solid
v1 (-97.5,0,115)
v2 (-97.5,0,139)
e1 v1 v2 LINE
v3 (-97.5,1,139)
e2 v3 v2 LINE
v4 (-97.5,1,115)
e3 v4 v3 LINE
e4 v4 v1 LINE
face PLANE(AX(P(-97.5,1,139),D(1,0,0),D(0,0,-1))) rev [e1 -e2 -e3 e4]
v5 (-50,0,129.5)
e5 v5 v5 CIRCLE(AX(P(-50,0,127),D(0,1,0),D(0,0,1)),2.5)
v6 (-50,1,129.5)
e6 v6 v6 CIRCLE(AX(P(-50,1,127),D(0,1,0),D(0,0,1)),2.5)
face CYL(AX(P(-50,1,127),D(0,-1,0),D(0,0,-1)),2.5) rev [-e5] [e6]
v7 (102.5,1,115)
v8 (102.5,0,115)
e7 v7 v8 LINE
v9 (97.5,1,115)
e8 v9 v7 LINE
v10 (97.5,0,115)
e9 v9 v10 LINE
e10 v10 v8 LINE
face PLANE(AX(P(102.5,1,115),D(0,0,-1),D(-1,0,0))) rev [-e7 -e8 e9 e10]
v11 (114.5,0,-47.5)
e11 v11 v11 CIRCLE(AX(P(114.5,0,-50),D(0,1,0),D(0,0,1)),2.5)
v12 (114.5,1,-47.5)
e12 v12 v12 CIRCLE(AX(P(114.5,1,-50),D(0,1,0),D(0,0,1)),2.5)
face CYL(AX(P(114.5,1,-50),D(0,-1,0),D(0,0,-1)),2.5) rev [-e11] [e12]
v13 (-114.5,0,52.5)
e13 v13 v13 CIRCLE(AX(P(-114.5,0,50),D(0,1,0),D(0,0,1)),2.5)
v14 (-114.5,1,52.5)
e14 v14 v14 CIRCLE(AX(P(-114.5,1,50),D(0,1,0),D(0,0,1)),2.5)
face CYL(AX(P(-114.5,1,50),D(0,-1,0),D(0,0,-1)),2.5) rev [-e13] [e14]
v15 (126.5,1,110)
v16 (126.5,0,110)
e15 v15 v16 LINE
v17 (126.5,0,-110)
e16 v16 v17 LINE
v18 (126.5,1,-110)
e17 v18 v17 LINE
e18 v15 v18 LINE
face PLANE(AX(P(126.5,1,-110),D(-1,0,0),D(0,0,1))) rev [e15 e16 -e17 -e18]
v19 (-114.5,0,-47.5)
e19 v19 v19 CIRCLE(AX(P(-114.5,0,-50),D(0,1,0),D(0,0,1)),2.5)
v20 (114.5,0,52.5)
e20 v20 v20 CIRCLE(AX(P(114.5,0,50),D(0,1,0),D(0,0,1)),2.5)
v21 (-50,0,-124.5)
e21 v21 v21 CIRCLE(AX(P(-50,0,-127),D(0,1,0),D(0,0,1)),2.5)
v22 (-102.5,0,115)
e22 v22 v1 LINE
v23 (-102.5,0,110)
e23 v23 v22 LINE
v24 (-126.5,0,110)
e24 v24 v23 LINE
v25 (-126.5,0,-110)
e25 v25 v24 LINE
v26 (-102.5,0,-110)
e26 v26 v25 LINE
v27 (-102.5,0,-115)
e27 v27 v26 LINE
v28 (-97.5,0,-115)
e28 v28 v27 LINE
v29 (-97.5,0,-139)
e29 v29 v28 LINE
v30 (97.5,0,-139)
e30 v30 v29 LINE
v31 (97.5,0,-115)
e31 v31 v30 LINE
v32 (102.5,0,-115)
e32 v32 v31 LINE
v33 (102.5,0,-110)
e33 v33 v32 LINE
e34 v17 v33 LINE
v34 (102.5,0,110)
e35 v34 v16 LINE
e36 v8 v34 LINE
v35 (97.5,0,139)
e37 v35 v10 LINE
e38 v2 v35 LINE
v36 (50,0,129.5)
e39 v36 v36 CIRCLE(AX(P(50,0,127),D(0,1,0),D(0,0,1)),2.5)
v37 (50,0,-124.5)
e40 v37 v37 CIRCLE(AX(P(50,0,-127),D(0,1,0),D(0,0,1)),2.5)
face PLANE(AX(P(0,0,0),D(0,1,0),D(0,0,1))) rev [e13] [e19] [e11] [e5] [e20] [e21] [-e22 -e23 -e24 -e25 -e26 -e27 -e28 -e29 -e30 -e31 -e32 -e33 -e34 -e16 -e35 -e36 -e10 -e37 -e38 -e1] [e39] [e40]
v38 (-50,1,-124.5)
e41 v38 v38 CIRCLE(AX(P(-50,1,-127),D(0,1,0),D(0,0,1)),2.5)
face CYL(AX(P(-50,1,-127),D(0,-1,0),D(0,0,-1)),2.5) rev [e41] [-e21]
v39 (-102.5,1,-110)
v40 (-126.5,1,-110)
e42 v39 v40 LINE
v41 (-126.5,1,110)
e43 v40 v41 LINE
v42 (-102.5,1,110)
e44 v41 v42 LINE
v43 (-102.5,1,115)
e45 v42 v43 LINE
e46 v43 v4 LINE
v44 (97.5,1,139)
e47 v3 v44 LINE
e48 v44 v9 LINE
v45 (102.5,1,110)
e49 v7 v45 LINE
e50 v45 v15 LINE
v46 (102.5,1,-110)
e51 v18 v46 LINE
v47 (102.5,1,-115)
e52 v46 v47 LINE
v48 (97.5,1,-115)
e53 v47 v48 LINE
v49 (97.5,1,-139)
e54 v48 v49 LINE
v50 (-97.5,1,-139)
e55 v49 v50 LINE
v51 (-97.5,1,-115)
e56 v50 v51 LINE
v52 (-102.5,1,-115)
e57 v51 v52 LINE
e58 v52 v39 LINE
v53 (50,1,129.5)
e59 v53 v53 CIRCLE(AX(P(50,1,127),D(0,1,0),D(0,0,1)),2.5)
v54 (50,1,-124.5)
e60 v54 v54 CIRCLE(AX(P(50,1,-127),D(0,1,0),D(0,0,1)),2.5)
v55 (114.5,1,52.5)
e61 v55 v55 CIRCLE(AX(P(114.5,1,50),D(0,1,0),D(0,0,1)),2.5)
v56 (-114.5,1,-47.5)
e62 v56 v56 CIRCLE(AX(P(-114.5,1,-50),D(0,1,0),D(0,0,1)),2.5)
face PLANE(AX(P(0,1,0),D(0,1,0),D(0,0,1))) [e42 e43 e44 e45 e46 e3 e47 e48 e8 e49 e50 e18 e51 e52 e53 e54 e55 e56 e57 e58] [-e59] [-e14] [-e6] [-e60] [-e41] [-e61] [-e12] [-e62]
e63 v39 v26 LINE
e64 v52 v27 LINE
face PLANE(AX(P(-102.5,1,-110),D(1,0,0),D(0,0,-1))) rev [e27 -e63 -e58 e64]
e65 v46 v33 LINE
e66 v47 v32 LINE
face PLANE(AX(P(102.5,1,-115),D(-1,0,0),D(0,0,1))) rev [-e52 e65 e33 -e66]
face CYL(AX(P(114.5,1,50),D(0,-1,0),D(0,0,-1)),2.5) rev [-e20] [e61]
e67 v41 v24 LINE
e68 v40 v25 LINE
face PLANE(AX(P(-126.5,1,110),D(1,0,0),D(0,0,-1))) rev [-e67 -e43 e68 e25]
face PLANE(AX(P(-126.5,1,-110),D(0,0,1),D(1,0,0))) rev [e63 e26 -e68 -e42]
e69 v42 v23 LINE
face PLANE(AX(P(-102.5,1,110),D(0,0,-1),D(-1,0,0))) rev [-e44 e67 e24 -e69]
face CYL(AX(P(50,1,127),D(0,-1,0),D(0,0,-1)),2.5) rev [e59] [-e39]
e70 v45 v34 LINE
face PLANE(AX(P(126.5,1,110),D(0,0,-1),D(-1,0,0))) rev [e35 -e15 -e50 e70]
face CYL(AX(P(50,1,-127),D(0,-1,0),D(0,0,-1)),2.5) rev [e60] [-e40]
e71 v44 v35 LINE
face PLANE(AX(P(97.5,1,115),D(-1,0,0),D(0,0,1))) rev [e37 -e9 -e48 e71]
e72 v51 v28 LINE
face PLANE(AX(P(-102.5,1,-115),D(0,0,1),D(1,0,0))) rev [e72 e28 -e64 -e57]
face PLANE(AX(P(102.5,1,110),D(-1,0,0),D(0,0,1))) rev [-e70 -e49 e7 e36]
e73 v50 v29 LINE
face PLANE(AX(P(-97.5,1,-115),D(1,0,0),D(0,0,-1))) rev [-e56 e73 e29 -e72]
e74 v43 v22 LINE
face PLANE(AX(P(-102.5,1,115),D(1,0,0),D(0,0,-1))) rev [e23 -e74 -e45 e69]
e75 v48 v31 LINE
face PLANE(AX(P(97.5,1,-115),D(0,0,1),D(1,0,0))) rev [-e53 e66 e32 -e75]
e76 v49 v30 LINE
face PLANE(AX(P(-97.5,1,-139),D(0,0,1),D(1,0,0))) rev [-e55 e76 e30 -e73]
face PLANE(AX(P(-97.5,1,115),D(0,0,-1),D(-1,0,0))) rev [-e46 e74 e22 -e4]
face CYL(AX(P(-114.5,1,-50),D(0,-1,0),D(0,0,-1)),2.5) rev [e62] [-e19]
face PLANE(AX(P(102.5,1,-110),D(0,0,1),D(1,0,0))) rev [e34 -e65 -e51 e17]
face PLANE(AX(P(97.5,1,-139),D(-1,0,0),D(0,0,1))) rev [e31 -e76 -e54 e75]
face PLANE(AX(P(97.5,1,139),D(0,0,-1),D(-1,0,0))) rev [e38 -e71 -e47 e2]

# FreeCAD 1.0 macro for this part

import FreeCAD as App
import Part
import Sketcher
Q = App.Units.Quantity


def add_polygon(sketch, points):
    """Adds a closed chain of lines whose ends are joined by coincident constraints."""
    first, n = sketch.GeometryCount, len(points)
    for a, b in zip(points, points[1:] + points[:1]):
        sketch.addGeometry(Part.LineSegment(App.Vector(*a, 0), App.Vector(*b, 0)), False)
    for i in range(n):
        sketch.addConstraint(Sketcher.Constraint("Coincident", first + i, 2, first + (i + 1) % n, 1))

doc = App.newDocument("Part")
body = doc.addObject("PartDesign::Body", "Body")

sketch1 = body.newObject("Sketcher::SketchObject", "Sketch")
sketch1.AttachmentSupport = (doc.getObject("XZ_Plane"), [""])
sketch1.MapMode = "FlatFace"
add_polygon(sketch1, [(-97.5, -115), (-102.5, -115), (-102.5, -110), (-126.5, -110), (-126.5, 110), (-102.5, 110), (-102.5, 115), (-97.5, 115), (-97.5, 139), (97.5, 139), (97.5, 115), (102.5, 115), (102.5, 110), (126.5, 110), (126.5, -110), (102.5, -110), (102.5, -115), (97.5, -115), (97.5, -139), (-97.5, -139)])
sketch1.addGeometry(Part.Circle(App.Vector(50, 127, 0), App.Vector(0, 0, 1), 2.5), False)
sketch1.addGeometry(Part.Circle(App.Vector(114.5, 50, 0), App.Vector(0, 0, 1), 2.5), False)
sketch1.addGeometry(Part.Circle(App.Vector(-50, 127, 0), App.Vector(0, 0, 1), 2.5), False)
sketch1.addGeometry(Part.Circle(App.Vector(-114.5, 50, 0), App.Vector(0, 0, 1), 2.5), False)
sketch1.addGeometry(Part.Circle(App.Vector(114.5, -50, 0), App.Vector(0, 0, 1), 2.5), False)
sketch1.addGeometry(Part.Circle(App.Vector(50, -127, 0), App.Vector(0, 0, 1), 2.5), False)
sketch1.addGeometry(Part.Circle(App.Vector(-114.5, -50, 0), App.Vector(0, 0, 1), 2.5), False)
sketch1.addGeometry(Part.Circle(App.Vector(-50, -127, 0), App.Vector(0, 0, 1), 2.5), False)
sketch1.addConstraint(Sketcher.Constraint("Horizontal", 0))
sketch1.addConstraint(Sketcher.Constraint("Vertical", 1))
sketch1.addConstraint(Sketcher.Constraint("Horizontal", 2))
sketch1.addConstraint(Sketcher.Constraint("Vertical", 3))
sketch1.addConstraint(Sketcher.Constraint("Horizontal", 4))
sketch1.addConstraint(Sketcher.Constraint("Vertical", 5))
sketch1.addConstraint(Sketcher.Constraint("Horizontal", 6))
sketch1.addConstraint(Sketcher.Constraint("Vertical", 7))
sketch1.addConstraint(Sketcher.Constraint("Horizontal", 8))
sketch1.addConstraint(Sketcher.Constraint("Vertical", 9))
sketch1.addConstraint(Sketcher.Constraint("Horizontal", 10))
sketch1.addConstraint(Sketcher.Constraint("Vertical", 11))
sketch1.addConstraint(Sketcher.Constraint("Horizontal", 12))
sketch1.addConstraint(Sketcher.Constraint("Vertical", 13))
sketch1.addConstraint(Sketcher.Constraint("Horizontal", 14))
sketch1.addConstraint(Sketcher.Constraint("Vertical", 15))
sketch1.addConstraint(Sketcher.Constraint("Horizontal", 16))
sketch1.addConstraint(Sketcher.Constraint("Vertical", 17))
sketch1.addConstraint(Sketcher.Constraint("Horizontal", 18))
sketch1.addConstraint(Sketcher.Constraint("Vertical", 19))
sketch1.addConstraint(Sketcher.Constraint("Equal", 20, 21))
sketch1.addConstraint(Sketcher.Constraint("Equal", 21, 22))
sketch1.addConstraint(Sketcher.Constraint("Equal", 22, 23))
sketch1.addConstraint(Sketcher.Constraint("Equal", 23, 24))
sketch1.addConstraint(Sketcher.Constraint("Equal", 24, 25))
sketch1.addConstraint(Sketcher.Constraint("Equal", 25, 26))
sketch1.addConstraint(Sketcher.Constraint("Equal", 26, 27))
sketch1.addConstraint(Sketcher.Constraint("Symmetric", 23, 3, 24, 3, -1, 1))
sketch1.addConstraint(Sketcher.Constraint("Symmetric", 22, 3, 25, 3, -1, 1))
sketch1.addConstraint(Sketcher.Constraint("Symmetric", 21, 3, 26, 3, -1, 1))
sketch1.addConstraint(Sketcher.Constraint("Symmetric", 20, 3, 27, 3, -1, 1))
sketch1.addConstraint(Sketcher.Constraint("Symmetric", 0, 2, 10, 2, -1, 1))
sketch1.addConstraint(Sketcher.Constraint("Symmetric", 2, 2, 12, 2, -1, 1))
sketch1.addConstraint(Sketcher.Constraint("Symmetric", 4, 2, 14, 2, -1, 1))
sketch1.addConstraint(Sketcher.Constraint("Symmetric", 6, 2, 16, 2, -1, 1))
sketch1.addConstraint(Sketcher.Constraint("Symmetric", 8, 2, 18, 2, -1, 1))
sketch1.addConstraint(Sketcher.Constraint("Symmetric", 20, 3, 22, 3, -2))
sketch1.addConstraint(Sketcher.Constraint("Symmetric", 21, 3, 23, 3, -2))
sketch1.addConstraint(Sketcher.Constraint("Symmetric", 6, 2, 9, 2, -2))
sketch1.addConstraint(Sketcher.Constraint("Symmetric", 4, 2, 11, 2, -2))
sketch1.addConstraint(Sketcher.Constraint("Equal", 16, 1))
sketch1.addConstraint(Sketcher.Constraint("Equal", 14, 7))
sketch1.addConstraint(Sketcher.Constraint("Diameter", 20, Q("5 mm")))
sketch1.addConstraint(Sketcher.Constraint("DistanceX", 0, 2, 0, 1, Q("5 mm")))
sketch1.addConstraint(Sketcher.Constraint("DistanceX", 2, 2, 2, 1, Q("24 mm")))
sketch1.addConstraint(Sketcher.Constraint("DistanceX", 8, 1, 8, 2, Q("195 mm")))
sketch1.addConstraint(Sketcher.Constraint("DistanceY", 3, 1, 3, 2, Q("220 mm")))
sketch1.addConstraint(Sketcher.Constraint("DistanceX", -1, 1, 20, 3, Q("50 mm")))
sketch1.addConstraint(Sketcher.Constraint("DistanceY", -1, 1, 20, 3, Q("127 mm")))
sketch1.addConstraint(Sketcher.Constraint("DistanceY", -1, 1, 21, 3, Q("50 mm")))
sketch1.addConstraint(Sketcher.Constraint("DistanceX", 23, 3, 21, 3, Q("229 mm")))
pad1 = body.newObject("PartDesign::Pad", "Pad")
pad1.Profile = sketch1
pad1.Length = 1
pad1.Reversed = True

doc.recompute()
